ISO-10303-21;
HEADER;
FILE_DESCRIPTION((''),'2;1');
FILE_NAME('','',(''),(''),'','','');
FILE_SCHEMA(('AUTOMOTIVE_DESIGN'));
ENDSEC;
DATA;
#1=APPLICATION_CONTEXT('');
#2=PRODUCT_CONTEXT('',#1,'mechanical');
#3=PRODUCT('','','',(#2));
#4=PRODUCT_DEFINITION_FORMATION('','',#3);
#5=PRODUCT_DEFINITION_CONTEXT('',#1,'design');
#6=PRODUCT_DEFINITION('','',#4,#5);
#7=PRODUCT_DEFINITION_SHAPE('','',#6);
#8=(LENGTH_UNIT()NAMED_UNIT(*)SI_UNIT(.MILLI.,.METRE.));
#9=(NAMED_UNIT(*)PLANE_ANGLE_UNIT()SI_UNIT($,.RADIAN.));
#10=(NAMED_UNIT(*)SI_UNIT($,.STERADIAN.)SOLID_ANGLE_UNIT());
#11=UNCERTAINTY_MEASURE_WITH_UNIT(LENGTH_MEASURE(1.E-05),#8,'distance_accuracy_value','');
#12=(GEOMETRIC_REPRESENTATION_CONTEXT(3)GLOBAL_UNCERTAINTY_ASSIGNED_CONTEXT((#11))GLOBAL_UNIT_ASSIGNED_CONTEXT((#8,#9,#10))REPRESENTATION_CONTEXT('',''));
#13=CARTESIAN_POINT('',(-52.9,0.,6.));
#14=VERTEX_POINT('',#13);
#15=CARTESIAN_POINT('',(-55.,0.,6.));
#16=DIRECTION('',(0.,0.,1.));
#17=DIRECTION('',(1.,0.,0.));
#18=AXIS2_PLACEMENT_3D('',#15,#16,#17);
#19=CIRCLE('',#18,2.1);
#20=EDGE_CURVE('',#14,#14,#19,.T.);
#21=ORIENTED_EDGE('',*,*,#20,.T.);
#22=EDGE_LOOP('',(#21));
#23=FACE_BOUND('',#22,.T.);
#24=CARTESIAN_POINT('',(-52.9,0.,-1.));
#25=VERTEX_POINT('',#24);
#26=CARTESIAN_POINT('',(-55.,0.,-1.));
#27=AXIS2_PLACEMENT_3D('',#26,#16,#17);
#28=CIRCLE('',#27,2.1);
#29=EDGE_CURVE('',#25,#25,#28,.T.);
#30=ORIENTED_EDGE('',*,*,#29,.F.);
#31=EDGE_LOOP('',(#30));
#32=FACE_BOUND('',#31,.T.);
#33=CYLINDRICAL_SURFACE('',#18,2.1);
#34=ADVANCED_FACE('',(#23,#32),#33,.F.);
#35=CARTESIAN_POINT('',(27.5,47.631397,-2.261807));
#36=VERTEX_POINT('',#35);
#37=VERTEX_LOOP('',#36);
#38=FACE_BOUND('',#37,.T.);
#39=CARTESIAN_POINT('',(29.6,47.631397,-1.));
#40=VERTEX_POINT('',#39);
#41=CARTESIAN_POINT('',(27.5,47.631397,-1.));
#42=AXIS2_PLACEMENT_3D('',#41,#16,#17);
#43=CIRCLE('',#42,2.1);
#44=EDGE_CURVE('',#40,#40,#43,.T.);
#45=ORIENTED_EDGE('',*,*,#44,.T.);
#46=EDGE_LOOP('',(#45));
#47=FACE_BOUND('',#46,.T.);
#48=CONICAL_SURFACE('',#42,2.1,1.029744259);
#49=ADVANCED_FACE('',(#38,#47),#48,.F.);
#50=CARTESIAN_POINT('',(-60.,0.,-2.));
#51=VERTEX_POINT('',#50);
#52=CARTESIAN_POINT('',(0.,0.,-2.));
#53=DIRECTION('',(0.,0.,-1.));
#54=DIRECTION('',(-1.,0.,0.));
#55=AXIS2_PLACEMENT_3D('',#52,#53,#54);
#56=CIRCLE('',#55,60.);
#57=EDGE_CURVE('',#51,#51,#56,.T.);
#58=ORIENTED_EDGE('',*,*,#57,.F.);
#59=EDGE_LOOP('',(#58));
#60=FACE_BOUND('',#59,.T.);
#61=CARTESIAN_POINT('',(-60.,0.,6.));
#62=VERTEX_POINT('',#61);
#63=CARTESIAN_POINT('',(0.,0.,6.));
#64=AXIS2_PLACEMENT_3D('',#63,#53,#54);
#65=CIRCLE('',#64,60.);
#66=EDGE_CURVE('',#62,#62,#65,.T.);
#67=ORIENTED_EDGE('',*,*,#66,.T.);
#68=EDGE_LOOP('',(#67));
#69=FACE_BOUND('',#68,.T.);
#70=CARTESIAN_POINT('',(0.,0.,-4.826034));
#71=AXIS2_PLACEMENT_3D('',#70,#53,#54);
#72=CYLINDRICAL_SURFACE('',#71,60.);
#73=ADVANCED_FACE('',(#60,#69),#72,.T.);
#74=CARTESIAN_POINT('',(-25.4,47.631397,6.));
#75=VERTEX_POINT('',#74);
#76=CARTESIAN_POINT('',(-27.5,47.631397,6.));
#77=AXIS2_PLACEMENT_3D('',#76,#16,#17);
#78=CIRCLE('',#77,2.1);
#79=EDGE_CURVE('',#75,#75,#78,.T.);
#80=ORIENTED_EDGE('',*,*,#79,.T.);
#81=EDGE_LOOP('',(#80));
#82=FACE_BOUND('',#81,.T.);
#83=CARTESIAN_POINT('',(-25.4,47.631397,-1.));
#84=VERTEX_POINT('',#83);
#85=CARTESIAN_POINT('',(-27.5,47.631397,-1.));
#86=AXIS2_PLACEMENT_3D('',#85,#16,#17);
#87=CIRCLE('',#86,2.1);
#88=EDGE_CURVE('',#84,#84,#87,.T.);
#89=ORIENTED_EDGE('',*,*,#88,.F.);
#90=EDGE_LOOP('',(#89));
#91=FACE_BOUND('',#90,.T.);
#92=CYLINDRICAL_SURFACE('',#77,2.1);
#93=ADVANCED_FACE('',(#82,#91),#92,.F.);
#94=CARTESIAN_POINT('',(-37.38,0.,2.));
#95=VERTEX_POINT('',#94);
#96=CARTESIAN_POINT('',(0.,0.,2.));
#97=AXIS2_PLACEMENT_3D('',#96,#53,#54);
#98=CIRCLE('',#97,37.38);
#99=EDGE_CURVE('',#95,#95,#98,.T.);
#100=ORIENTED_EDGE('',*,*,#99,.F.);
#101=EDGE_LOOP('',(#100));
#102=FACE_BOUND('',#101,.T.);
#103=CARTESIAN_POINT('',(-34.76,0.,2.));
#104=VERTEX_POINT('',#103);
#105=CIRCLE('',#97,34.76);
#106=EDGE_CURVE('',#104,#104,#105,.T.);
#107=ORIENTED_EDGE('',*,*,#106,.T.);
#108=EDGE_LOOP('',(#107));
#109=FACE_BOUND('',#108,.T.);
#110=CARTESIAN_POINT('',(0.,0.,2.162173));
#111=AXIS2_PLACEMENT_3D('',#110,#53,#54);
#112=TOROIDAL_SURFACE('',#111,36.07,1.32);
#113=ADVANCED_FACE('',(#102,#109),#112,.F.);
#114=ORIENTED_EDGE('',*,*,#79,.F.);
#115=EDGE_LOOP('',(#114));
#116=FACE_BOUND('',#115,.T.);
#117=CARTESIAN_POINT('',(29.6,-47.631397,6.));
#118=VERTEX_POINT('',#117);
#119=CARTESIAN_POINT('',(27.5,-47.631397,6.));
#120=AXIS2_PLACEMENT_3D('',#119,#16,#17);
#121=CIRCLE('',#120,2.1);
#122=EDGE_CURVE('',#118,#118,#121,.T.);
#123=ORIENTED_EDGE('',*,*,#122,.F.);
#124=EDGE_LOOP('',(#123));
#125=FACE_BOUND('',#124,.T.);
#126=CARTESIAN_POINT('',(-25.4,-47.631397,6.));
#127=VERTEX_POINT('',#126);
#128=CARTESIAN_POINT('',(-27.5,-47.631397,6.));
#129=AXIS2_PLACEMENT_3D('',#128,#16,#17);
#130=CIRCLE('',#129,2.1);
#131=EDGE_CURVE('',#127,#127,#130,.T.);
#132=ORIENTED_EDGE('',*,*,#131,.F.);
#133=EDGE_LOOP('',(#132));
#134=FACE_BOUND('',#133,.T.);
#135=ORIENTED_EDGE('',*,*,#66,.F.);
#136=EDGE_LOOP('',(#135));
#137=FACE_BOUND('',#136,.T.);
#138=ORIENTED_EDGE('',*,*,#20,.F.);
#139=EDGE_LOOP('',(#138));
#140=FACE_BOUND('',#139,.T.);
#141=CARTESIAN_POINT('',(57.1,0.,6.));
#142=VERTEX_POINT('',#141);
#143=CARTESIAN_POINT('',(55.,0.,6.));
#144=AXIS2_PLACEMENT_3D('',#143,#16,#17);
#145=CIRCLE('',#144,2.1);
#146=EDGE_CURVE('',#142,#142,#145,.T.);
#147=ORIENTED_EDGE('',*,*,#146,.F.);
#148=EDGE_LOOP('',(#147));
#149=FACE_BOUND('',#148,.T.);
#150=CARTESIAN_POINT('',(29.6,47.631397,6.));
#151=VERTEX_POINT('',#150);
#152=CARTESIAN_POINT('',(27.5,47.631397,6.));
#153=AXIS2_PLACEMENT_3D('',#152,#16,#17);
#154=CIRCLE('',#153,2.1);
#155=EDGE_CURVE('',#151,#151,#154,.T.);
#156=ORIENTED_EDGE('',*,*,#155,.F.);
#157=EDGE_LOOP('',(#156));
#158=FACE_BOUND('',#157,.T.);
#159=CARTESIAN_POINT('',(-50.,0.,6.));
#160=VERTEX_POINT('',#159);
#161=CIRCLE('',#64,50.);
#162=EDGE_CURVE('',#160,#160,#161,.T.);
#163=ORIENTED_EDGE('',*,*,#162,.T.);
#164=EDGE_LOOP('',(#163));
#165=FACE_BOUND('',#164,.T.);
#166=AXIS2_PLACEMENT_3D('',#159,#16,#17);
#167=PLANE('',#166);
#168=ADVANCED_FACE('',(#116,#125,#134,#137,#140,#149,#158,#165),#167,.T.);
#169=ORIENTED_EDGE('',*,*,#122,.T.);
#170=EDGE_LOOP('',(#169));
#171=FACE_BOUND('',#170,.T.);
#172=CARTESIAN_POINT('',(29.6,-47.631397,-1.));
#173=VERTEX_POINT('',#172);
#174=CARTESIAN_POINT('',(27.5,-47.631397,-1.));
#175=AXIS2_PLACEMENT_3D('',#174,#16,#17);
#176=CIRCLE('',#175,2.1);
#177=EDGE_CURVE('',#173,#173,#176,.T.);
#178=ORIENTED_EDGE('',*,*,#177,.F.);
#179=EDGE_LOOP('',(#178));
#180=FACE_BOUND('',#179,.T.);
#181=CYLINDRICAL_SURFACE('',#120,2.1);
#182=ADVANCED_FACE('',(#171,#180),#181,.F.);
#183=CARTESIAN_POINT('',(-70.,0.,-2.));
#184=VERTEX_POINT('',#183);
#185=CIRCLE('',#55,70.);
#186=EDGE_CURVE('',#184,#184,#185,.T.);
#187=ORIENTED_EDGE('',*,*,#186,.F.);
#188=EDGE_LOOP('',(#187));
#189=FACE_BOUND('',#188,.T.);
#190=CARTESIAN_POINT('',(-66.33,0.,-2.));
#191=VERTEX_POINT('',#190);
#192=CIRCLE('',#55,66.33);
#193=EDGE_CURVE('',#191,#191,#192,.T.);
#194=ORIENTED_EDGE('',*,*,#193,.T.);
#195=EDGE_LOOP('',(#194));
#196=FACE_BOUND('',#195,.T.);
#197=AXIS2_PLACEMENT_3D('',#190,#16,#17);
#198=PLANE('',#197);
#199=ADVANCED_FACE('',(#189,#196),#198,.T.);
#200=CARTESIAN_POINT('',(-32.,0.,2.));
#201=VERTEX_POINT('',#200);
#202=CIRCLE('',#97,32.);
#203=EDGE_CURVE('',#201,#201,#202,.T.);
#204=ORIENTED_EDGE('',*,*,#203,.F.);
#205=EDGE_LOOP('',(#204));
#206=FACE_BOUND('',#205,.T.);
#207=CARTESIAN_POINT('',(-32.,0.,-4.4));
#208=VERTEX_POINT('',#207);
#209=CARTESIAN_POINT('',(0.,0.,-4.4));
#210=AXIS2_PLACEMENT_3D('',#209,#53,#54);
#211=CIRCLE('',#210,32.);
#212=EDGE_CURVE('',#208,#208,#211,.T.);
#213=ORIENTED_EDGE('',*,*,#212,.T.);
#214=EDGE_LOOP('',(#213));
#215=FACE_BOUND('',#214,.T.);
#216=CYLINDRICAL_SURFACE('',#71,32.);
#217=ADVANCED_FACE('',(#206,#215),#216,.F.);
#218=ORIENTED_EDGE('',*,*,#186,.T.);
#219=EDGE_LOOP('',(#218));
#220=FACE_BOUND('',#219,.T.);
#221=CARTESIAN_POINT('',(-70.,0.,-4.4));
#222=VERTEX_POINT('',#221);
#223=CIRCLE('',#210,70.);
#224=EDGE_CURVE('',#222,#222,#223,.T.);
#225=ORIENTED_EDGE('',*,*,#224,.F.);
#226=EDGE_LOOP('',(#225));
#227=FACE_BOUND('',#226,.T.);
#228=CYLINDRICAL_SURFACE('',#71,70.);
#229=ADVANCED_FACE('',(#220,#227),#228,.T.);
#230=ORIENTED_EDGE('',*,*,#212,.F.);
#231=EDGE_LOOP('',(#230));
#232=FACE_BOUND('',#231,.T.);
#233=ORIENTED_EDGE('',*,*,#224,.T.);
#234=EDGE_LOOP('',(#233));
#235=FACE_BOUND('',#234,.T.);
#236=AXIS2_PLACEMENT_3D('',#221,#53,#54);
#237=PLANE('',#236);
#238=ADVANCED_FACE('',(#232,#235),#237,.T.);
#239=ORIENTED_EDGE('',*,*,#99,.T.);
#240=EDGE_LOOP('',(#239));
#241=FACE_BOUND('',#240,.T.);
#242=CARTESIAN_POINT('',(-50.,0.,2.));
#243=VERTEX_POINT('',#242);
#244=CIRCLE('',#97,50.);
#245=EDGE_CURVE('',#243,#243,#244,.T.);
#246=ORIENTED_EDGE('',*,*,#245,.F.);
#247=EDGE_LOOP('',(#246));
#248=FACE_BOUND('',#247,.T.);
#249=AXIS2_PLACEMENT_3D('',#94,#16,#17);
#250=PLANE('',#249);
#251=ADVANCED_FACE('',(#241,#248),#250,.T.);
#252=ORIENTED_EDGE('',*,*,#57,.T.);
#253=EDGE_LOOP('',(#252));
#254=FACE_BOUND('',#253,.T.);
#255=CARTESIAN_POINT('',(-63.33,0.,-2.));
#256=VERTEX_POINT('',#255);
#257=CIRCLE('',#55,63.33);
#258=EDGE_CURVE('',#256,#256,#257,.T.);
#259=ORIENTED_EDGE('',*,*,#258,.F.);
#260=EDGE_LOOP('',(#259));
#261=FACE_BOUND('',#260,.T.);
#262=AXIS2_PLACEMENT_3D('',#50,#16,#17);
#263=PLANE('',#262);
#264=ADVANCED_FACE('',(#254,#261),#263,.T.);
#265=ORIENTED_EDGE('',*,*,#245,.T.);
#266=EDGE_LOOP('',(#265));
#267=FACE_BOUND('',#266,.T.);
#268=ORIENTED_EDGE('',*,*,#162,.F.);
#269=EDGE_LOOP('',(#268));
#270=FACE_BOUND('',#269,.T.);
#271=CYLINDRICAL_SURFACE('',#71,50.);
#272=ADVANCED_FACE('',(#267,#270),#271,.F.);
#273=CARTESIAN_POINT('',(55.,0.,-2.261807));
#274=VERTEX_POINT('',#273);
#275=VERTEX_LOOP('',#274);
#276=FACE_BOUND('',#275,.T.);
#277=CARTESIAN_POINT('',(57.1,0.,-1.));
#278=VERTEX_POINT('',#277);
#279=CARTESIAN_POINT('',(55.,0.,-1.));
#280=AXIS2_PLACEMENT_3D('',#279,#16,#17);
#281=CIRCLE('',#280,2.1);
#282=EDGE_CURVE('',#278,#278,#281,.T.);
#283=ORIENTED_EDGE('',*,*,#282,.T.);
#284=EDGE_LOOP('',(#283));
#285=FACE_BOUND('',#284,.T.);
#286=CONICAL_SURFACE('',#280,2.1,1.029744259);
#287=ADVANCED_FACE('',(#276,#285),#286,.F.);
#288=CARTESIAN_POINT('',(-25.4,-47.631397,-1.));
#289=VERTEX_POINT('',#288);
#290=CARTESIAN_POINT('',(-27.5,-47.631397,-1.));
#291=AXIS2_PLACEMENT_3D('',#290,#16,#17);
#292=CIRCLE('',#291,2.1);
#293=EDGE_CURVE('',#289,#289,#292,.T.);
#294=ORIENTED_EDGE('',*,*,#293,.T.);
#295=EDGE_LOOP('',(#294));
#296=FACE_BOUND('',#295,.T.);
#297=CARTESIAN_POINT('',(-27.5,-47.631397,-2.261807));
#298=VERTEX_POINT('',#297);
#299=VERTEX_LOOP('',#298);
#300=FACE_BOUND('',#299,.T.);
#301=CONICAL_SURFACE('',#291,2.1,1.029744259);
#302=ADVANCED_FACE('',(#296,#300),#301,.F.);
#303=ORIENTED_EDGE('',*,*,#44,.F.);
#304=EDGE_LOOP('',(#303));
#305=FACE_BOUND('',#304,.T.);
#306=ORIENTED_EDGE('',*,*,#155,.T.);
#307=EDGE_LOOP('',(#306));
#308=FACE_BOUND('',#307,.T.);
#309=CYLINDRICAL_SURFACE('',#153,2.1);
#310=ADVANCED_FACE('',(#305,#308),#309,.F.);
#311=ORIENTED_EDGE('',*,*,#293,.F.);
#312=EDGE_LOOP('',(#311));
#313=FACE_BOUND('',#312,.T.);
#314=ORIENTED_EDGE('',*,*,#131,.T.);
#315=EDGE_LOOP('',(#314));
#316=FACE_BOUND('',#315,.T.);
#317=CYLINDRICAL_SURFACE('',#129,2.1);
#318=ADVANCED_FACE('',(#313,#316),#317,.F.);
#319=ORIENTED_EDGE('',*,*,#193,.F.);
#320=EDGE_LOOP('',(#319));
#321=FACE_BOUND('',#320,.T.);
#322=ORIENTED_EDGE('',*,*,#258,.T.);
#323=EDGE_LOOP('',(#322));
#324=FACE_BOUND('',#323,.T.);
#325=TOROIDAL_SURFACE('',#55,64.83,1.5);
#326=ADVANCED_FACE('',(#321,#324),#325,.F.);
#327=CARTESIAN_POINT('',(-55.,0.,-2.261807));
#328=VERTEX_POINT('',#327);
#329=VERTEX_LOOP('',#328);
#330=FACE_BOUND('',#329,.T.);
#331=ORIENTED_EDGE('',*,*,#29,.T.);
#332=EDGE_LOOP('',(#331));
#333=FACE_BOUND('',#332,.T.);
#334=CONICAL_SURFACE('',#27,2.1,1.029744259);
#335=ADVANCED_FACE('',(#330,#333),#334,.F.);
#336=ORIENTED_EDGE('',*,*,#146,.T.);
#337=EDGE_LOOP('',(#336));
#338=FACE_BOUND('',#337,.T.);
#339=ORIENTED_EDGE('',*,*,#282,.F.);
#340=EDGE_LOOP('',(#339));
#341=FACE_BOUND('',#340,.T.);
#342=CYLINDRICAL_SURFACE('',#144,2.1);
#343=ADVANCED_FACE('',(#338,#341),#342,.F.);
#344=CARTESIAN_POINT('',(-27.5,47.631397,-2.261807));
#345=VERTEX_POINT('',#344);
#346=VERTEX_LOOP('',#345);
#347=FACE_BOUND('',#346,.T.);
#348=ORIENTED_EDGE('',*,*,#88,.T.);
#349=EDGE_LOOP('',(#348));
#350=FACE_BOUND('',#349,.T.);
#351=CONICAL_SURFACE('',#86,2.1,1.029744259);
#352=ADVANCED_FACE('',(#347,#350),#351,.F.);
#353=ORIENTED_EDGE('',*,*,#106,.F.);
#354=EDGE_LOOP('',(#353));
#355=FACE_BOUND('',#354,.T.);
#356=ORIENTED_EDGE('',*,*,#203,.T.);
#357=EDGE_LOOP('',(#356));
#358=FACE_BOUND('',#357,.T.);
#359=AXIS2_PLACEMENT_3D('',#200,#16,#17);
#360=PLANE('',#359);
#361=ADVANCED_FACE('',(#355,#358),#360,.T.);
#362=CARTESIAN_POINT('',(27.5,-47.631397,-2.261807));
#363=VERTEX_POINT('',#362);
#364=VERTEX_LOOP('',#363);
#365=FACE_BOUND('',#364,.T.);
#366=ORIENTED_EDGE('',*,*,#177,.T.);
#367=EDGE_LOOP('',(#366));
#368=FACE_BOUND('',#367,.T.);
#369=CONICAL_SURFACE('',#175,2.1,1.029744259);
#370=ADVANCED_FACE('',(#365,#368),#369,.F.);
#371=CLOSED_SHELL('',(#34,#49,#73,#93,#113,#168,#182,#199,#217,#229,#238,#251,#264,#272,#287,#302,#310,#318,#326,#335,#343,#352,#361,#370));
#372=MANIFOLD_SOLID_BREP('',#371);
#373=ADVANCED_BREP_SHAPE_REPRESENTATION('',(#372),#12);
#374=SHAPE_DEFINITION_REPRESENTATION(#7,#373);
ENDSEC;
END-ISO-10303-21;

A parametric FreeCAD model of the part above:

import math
import FreeCAD as App
import Part
import Sketcher

V = App.Vector

doc = App.newDocument("Part")
params = doc.addObject("Spreadsheet::Sheet", "Params")
for row, (alias, value) in enumerate([
    ("sketch1_radius", "1.5 mm"),
    ("sketch1_width", "10 mm"),
    ("sketch1_width2", "38 mm"),
    ("sketch1_height", "8 mm"),
    ("sketch1_height2", "4 mm"),
    ("revolution_angle", "360 deg"),
    ("sketch2_diameter", "4.2 mm"),
    ("hole_diameter", "4.2 mm"),
    ("hole_depth", "7 mm"),
], start=1):
    params.set(f"A{row}", alias)
    params.set(f"B{row}", "=" + value)
    params.setAlias(f"B{row}", alias)

body = doc.addObject("PartDesign::Body", "Body")

# Sketch on XZ plane
sketch1 = body.newObject("Sketcher::SketchObject", "Sketch")
sketch1.AttachmentSupport = (doc.getObject("XZ_Plane"), [""])
sketch1.MapMode = "FlatFace"
sketch1.addGeometry(Part.LineSegment(V(-70, -2, 0), V(-66.33, -2, 0)), False)
sketch1.addGeometry(Part.ArcOfCircle(Part.Circle(V(-64.83, -2, 0), V(0, 0, 1), 1.5), math.radians(180), math.radians(360)), False)
sketch1.addGeometry(Part.LineSegment(V(-63.33, -2, 0), V(-60, -2, 0)), False)
sketch1.addGeometry(Part.LineSegment(V(-60, -2, 0), V(-60, 6, 0)), False)
sketch1.addGeometry(Part.LineSegment(V(-60, 6, 0), V(-50, 6, 0)), False)
sketch1.addGeometry(Part.LineSegment(V(-50, 6, 0), V(-50, 2, 0)), False)
sketch1.addGeometry(Part.LineSegment(V(-50, 2, 0), V(-37.38, 2, 0)), False)
sketch1.addGeometry(Part.ArcOfCircle(Part.Circle(V(-36.07, 2.162173, 0), V(0, 0, 1), 1.32), math.radians(-172.942917), math.radians(-7.057083)), False)
sketch1.addGeometry(Part.LineSegment(V(-34.76, 2, 0), V(-32, 2, 0)), False)
sketch1.addGeometry(Part.LineSegment(V(-32, 2, 0), V(-32, -4.4, 0)), False)
sketch1.addGeometry(Part.LineSegment(V(-32, -4.4, 0), V(-70, -4.4, 0)), False)
sketch1.addGeometry(Part.LineSegment(V(-70, -4.4, 0), V(-70, -2, 0)), False)
sketch1.addConstraint(Sketcher.Constraint("Coincident", 0, 2, 1, 1))
sketch1.addConstraint(Sketcher.Constraint("Coincident", 1, 2, 2, 1))
sketch1.addConstraint(Sketcher.Constraint("Coincident", 2, 2, 3, 1))
sketch1.addConstraint(Sketcher.Constraint("Coincident", 3, 2, 4, 1))
sketch1.addConstraint(Sketcher.Constraint("Coincident", 4, 2, 5, 1))
sketch1.addConstraint(Sketcher.Constraint("Coincident", 5, 2, 6, 1))
sketch1.addConstraint(Sketcher.Constraint("Coincident", 6, 2, 7, 1))
sketch1.addConstraint(Sketcher.Constraint("Coincident", 7, 2, 8, 1))
sketch1.addConstraint(Sketcher.Constraint("Coincident", 8, 2, 9, 1))
sketch1.addConstraint(Sketcher.Constraint("Coincident", 9, 2, 10, 1))
sketch1.addConstraint(Sketcher.Constraint("Coincident", 10, 2, 11, 1))
sketch1.addConstraint(Sketcher.Constraint("Coincident", 11, 2, 0, 1))
sketch1.addConstraint(Sketcher.Constraint("Horizontal", 0))
sketch1.addConstraint(Sketcher.Constraint("Horizontal", 2))
sketch1.addConstraint(Sketcher.Constraint("Vertical", 3))
sketch1.addConstraint(Sketcher.Constraint("Horizontal", 4))
sketch1.addConstraint(Sketcher.Constraint("Vertical", 5))
sketch1.addConstraint(Sketcher.Constraint("Horizontal", 6))
sketch1.addConstraint(Sketcher.Constraint("Horizontal", 8))
sketch1.addConstraint(Sketcher.Constraint("Vertical", 9))
sketch1.addConstraint(Sketcher.Constraint("Horizontal", 10))
sketch1.addConstraint(Sketcher.Constraint("Vertical", 11))
sketch1.addConstraint(Sketcher.Constraint("Horizontal", 1, 3, 0, 2))
sketch1.addConstraint(Sketcher.Constraint("Horizontal", 0, 2, 1, 2))
sketch1.addConstraint(Sketcher.Constraint("Horizontal", 6, 2, 7, 2))
sketch1.addConstraint(Sketcher.Constraint("Radius", 1, 1.5))
sketch1.addConstraint(Sketcher.Constraint("DistanceX", 4, 1, 4, 2, 10.0))
sketch1.addConstraint(Sketcher.Constraint("DistanceX", 10, 2, 10, 1, 38.0))
sketch1.addConstraint(Sketcher.Constraint("DistanceY", 3, 1, 3, 2, 8.0))
sketch1.addConstraint(Sketcher.Constraint("DistanceY", 5, 2, 5, 1, 4.0))
sketch1.addConstraint(Sketcher.Constraint("Radius", 7, 1.32))
sketch1.addConstraint(Sketcher.Constraint("DistanceY", 9, 2, 9, 1, 6.4))
sketch1.addConstraint(Sketcher.Constraint("DistanceY", 1, 3, -1, 1, 2.0))
sketch1.addConstraint(Sketcher.Constraint("DistanceX", 2, 2, -1, 1, 60.0))
sketch1.addConstraint(Sketcher.Constraint("DistanceX", 8, 2, -1, 1, 32.0))
sketch1.addConstraint(Sketcher.Constraint("DistanceX", 0, 1, 0, 2, 3.67))
sketch1.addConstraint(Sketcher.Constraint("DistanceX", 6, 1, 6, 2, 12.62))
sketch1.addConstraint(Sketcher.Constraint("DistanceX", 8, 1, 8, 2, 2.76))
sketch1.setExpression("Constraints[25]", "Params.sketch1_radius")
sketch1.setExpression("Constraints[26]", "Params.sketch1_width")
sketch1.setExpression("Constraints[27]", "Params.sketch1_width2")
sketch1.setExpression("Constraints[28]", "Params.sketch1_height")
sketch1.setExpression("Constraints[29]", "Params.sketch1_height2")
revolution = body.newObject("PartDesign::Revolution", "Revolution")
revolution.Profile = sketch1
revolution.ReferenceAxis = (sketch1, ["V_Axis"])
revolution.setExpression("Angle", "Params.revolution_angle")

# Sketch on XY plane
sketch2 = body.newObject("Sketcher::SketchObject", "Sketch001")
sketch2.AttachmentSupport = (doc.getObject("XY_Plane"), [""])
sketch2.MapMode = "FlatFace"
sketch2.AttachmentOffset = App.Placement(V(0, 0, 6), App.Rotation())
sketch2.addGeometry(Part.Circle(V(-27.5, 47.631397, 0), V(0, 0, 1), 2.1), False)
sketch2.addGeometry(Part.Circle(V(27.5, 47.631397, 0), V(0, 0, 1), 2.1), False)
sketch2.addGeometry(Part.Circle(V(55, 0, 0), V(0, 0, 1), 2.1), False)
sketch2.addGeometry(Part.Circle(V(27.5, -47.631397, 0), V(0, 0, 1), 2.1), False)
sketch2.addGeometry(Part.Circle(V(-27.5, -47.631397, 0), V(0, 0, 1), 2.1), False)
sketch2.addGeometry(Part.Circle(V(-55, 0, 0), V(0, 0, 1), 2.1), False)
sketch2.addConstraint(Sketcher.Constraint("Equal", 0, 1))
sketch2.addConstraint(Sketcher.Constraint("Equal", 1, 2))
sketch2.addConstraint(Sketcher.Constraint("Equal", 2, 3))
sketch2.addConstraint(Sketcher.Constraint("Equal", 3, 4))
sketch2.addConstraint(Sketcher.Constraint("Equal", 4, 5))
sketch2.addConstraint(Sketcher.Constraint("Symmetric", 0, 3, 3, 3, -1, 1))
sketch2.addConstraint(Sketcher.Constraint("Symmetric", 1, 3, 4, 3, -1, 1))
sketch2.addConstraint(Sketcher.Constraint("Symmetric", 2, 3, 5, 3, -1, 1))
sketch2.addConstraint(Sketcher.Constraint("Symmetric", 0, 3, 1, 3, -2))
sketch2.addConstraint(Sketcher.Constraint("PointOnObject", 2, 3, -1))
sketch2.addConstraint(Sketcher.Constraint("Diameter", 0, 4.2))
sketch2.addConstraint(Sketcher.Constraint("DistanceX", -1, 1, 2, 3, 55.0))
sketch2.addConstraint(Sketcher.Constraint("DistanceX", 0, 3, 1, 3, 55.0))
sketch2.addConstraint(Sketcher.Constraint("DistanceY", -1, 1, 0, 3, 47.631397))
sketch2.setExpression("Constraints[10]", "Params.sketch2_diameter")
doc.recompute()
hole = body.newObject("PartDesign::Hole", "Hole")
hole.Profile = sketch2
hole.ThreadType = "None"
hole.setExpression("Diameter", "Params.hole_diameter")
hole.DepthType = "Dimension"
hole.setExpression("Depth", "Params.hole_depth")
hole.DrillPoint = "Angled"
hole.DrillPointAngle = 118

doc.recompute()
